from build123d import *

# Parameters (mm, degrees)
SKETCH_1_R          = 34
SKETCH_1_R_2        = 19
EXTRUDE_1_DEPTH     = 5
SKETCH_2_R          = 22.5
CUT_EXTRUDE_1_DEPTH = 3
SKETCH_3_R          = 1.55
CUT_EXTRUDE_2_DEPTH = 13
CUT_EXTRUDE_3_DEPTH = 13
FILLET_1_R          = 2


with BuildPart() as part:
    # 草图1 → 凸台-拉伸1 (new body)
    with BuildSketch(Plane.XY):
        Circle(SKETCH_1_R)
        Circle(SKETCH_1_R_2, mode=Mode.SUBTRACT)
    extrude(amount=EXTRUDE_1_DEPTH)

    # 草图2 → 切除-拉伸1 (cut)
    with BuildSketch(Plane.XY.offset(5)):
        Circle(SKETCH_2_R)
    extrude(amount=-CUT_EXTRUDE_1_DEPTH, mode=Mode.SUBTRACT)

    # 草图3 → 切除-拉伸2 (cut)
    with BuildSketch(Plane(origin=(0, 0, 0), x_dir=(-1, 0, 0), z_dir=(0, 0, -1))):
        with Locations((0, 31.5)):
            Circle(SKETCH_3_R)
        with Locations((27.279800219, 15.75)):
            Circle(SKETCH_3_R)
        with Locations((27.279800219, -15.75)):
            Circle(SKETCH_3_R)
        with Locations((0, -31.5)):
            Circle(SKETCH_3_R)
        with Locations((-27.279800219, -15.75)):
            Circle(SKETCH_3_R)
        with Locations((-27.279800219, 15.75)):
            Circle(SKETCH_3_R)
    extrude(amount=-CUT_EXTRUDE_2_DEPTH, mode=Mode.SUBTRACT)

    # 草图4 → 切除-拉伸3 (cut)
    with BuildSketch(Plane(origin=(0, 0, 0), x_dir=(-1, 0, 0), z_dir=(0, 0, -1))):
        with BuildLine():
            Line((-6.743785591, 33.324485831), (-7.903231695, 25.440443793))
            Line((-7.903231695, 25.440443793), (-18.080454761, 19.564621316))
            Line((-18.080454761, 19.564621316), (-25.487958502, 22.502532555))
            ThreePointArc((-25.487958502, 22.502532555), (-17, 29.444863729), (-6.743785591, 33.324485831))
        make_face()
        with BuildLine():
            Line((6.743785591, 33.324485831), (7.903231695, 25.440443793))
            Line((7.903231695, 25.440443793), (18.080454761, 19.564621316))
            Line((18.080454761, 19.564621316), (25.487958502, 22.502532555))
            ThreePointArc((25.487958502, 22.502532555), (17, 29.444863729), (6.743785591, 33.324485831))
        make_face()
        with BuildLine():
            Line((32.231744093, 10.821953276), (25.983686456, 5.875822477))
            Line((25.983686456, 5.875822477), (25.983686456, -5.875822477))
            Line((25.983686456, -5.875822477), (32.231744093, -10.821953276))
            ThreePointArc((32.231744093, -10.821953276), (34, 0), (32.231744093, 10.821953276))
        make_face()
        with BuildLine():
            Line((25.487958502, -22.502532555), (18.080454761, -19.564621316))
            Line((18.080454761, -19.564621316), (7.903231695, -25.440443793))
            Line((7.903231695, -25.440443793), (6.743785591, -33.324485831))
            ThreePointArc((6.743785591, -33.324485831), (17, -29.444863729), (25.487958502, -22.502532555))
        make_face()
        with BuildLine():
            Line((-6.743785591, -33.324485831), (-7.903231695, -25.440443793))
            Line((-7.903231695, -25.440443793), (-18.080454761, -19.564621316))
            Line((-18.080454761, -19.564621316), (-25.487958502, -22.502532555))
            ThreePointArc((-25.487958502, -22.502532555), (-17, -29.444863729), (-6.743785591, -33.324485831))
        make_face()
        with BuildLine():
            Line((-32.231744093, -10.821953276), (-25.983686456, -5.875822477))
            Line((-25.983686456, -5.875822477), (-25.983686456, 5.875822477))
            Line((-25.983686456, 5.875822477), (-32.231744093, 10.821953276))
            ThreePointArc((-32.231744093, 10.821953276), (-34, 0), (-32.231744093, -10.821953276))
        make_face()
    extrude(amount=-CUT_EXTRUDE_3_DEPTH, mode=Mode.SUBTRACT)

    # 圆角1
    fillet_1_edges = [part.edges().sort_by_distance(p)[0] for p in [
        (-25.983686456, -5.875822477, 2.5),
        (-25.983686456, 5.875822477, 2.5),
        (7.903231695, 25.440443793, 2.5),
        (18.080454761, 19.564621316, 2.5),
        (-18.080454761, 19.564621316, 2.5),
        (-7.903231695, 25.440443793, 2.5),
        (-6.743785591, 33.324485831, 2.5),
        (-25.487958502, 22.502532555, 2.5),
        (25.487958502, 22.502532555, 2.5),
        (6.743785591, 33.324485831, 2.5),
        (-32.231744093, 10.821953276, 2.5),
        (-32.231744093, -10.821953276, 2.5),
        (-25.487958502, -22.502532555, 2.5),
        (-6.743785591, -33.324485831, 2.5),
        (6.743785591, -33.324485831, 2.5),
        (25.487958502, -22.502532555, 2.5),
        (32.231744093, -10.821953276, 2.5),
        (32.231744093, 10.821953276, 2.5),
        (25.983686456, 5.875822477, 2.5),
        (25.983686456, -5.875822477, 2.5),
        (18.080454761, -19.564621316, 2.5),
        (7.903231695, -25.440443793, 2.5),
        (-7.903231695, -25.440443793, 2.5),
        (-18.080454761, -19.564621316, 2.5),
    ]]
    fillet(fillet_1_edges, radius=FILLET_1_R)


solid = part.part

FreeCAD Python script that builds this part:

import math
import FreeCAD as App
import Part
import Sketcher

V = App.Vector
Q = App.Units.Quantity


def edges_at(feature, points):
    """Names of the edges that pass closest to the given points."""
    edges = feature.Shape.Edges
    near = lambda p: min(range(len(edges)), key=lambda i: edges[i].distToShape(Part.Vertex(*p))[0])
    return sorted({f"Edge{near(p) + 1}" for p in points})

doc = App.newDocument("Part")
body = doc.addObject("PartDesign::Body", "Body")

# Sketch on XY plane
sketch1 = body.newObject("Sketcher::SketchObject", "Sketch")
sketch1.AttachmentSupport = (doc.getObject("XY_Plane"), [""])
sketch1.MapMode = "FlatFace"
sketch1.addGeometry(Part.Circle(V(0, 0, 0), V(0, 0, 1), 34), False)
sketch1.addGeometry(Part.Circle(V(0, 0, 0), V(0, 0, 1), 19), False)
sketch1.addConstraint(Sketcher.Constraint("Coincident", 0, 3, -1, 1))
sketch1.addConstraint(Sketcher.Constraint("Coincident", 1, 3, -1, 1))
sketch1.addConstraint(Sketcher.Constraint("Diameter", 0, 68.0))
sketch1.addConstraint(Sketcher.Constraint("Diameter", 1, 38.0))
pad1 = body.newObject("PartDesign::Pad", "Pad")
pad1.Profile = sketch1
pad1.Length = 5

# Sketch on XY plane
sketch2 = body.newObject("Sketcher::SketchObject", "Sketch001")
sketch2.AttachmentSupport = (doc.getObject("XY_Plane"), [""])
sketch2.MapMode = "FlatFace"
sketch2.AttachmentOffset = App.Placement(V(0, 0, 5), App.Rotation())
sketch2.addGeometry(Part.Circle(V(0, 0, 0), V(0, 0, 1), 22.5), False)
sketch2.addConstraint(Sketcher.Constraint("Coincident", 0, 3, -1, 1))
sketch2.addConstraint(Sketcher.Constraint("Diameter", 0, 45.0))
pocket1 = body.newObject("PartDesign::Pocket", "Pocket")
pocket1.Profile = sketch2
pocket1.Length = 3

# Sketch on XY plane
sketch3 = body.newObject("Sketcher::SketchObject", "Sketch002")
sketch3.AttachmentSupport = (doc.getObject("XY_Plane"), [""])
sketch3.MapMode = "FlatFace"
sketch3.addGeometry(Part.Circle(V(0, 31.5, 0), V(0, 0, 1), 1.55), False)
sketch3.addGeometry(Part.Circle(V(-27.2798, 15.75, 0), V(0, 0, 1), 1.55), False)
sketch3.addGeometry(Part.Circle(V(-27.2798, -15.75, 0), V(0, 0, 1), 1.55), False)
sketch3.addGeometry(Part.Circle(V(0, -31.5, 0), V(0, 0, 1), 1.55), False)
sketch3.addGeometry(Part.Circle(V(27.2798, -15.75, 0), V(0, 0, 1), 1.55), False)
sketch3.addGeometry(Part.Circle(V(27.2798, 15.75, 0), V(0, 0, 1), 1.55), False)
sketch3.addConstraint(Sketcher.Constraint("Equal", 0, 1))
sketch3.addConstraint(Sketcher.Constraint("Equal", 1, 2))
sketch3.addConstraint(Sketcher.Constraint("Equal", 2, 3))
sketch3.addConstraint(Sketcher.Constraint("Equal", 3, 4))
sketch3.addConstraint(Sketcher.Constraint("Equal", 4, 5))
sketch3.addConstraint(Sketcher.Constraint("Symmetric", 0, 3, 3, 3, -1, 1))
sketch3.addConstraint(Sketcher.Constraint("Symmetric", 1, 3, 4, 3, -1, 1))
sketch3.addConstraint(Sketcher.Constraint("Symmetric", 2, 3, 5, 3, -1, 1))
sketch3.addConstraint(Sketcher.Constraint("Symmetric", 2, 3, 4, 3, -2))
sketch3.addConstraint(Sketcher.Constraint("PointOnObject", 0, 3, -2))
sketch3.addConstraint(Sketcher.Constraint("Diameter", 0, 3.1))
sketch3.addConstraint(Sketcher.Constraint("DistanceY", 3, 3, 0, 3, 63.0))
sketch3.addConstraint(Sketcher.Constraint("DistanceY", 2, 3, 1, 3, 31.5))
sketch3.addConstraint(Sketcher.Constraint("DistanceX", 1, 3, -1, 1, 27.2798))
pocket2 = body.newObject("PartDesign::Pocket", "Pocket001")
pocket2.Profile = sketch3
pocket2.Length = 13
pocket2.Reversed = True

# Sketch on XY plane
sketch4 = body.newObject("Sketcher::SketchObject", "Sketch003")
sketch4.AttachmentSupport = (doc.getObject("XY_Plane"), [""])
sketch4.MapMode = "FlatFace"
sketch4.addGeometry(Part.LineSegment(V(7.903232, 25.440444, 0), V(6.743786, 33.324486, 0)), False)
sketch4.addGeometry(Part.ArcOfCircle(Part.Circle(V(0, 0, 0), V(0, 0, 1), 34), math.radians(41.440291), math.radians(78.559709)), False)
sketch4.addGeometry(Part.LineSegment(V(25.487959, 22.502533, 0), V(18.080455, 19.564621, 0)), False)
sketch4.addGeometry(Part.LineSegment(V(18.080455, 19.564621, 0), V(7.903232, 25.440444, 0)), False)
sketch4.addGeometry(Part.LineSegment(V(-6.743786, 33.324486, 0), V(-7.903232, 25.440444, 0)), False)
sketch4.addGeometry(Part.LineSegment(V(-7.903232, 25.440444, 0), V(-18.080455, 19.564621, 0)), False)
sketch4.addGeometry(Part.LineSegment(V(-18.080455, 19.564621, 0), V(-25.487959, 22.502533, 0)), False)
sketch4.addGeometry(Part.ArcOfCircle(Part.Circle(V(0, 0, 0), V(0, 0, 1), 34), math.radians(101.440291), math.radians(138.559709)), False)
sketch4.addGeometry(Part.LineSegment(V(-32.231744, 10.821953, 0), V(-25.983686, 5.875822, 0)), False)
sketch4.addGeometry(Part.LineSegment(V(-25.983686, 5.875822, 0), V(-25.983686, -5.875822, 0)), False)
sketch4.addGeometry(Part.LineSegment(V(-25.983686, -5.875822, 0), V(-32.231744, -10.821953, 0)), False)
sketch4.addGeometry(Part.ArcOfCircle(Part.Circle(V(0, 0, 0), V(0, 0, 1), 34), math.radians(161.440291), math.radians(198.559709)), False)
sketch4.addGeometry(Part.LineSegment(V(-25.487959, -22.502533, 0), V(-18.080455, -19.564621, 0)), False)
sketch4.addGeometry(Part.LineSegment(V(-18.080455, -19.564621, 0), V(-7.903232, -25.440444, 0)), False)
sketch4.addGeometry(Part.LineSegment(V(-7.903232, -25.440444, 0), V(-6.743786, -33.324486, 0)), False)
sketch4.addGeometry(Part.ArcOfCircle(Part.Circle(V(0, 0, 0), V(0, 0, 1), 34), math.radians(-138.559709), math.radians(-101.440291)), False)
sketch4.addGeometry(Part.LineSegment(V(6.743786, -33.324486, 0), V(7.903232, -25.440444, 0)), False)
sketch4.addGeometry(Part.LineSegment(V(7.903232, -25.440444, 0), V(18.080455, -19.564621, 0)), False)
sketch4.addGeometry(Part.LineSegment(V(18.080455, -19.564621, 0), V(25.487959, -22.502533, 0)), False)
sketch4.addGeometry(Part.ArcOfCircle(Part.Circle(V(0, 0, 0), V(0, 0, 1), 34), math.radians(-78.559709), math.radians(-41.440291)), False)
sketch4.addGeometry(Part.LineSegment(V(32.231744, -10.821953, 0), V(25.983686, -5.875822, 0)), False)
sketch4.addGeometry(Part.LineSegment(V(25.983686, -5.875822, 0), V(25.983686, 5.875822, 0)), False)
sketch4.addGeometry(Part.LineSegment(V(25.983686, 5.875822, 0), V(32.231744, 10.821953, 0)), False)
sketch4.addGeometry(Part.ArcOfCircle(Part.Circle(V(0, 0, 0), V(0, 0, 1), 34), math.radians(-18.559709), math.radians(18.559709)), False)
sketch4.addConstraint(Sketcher.Constraint("Coincident", 0, 2, 1, 2))
sketch4.addConstraint(Sketcher.Constraint("Coincident", 1, 1, 2, 1))
sketch4.addConstraint(Sketcher.Constraint("Coincident", 2, 2, 3, 1))
sketch4.addConstraint(Sketcher.Constraint("Coincident", 3, 2, 0, 1))
sketch4.addConstraint(Sketcher.Constraint("Coincident", 4, 2, 5, 1))
sketch4.addConstraint(Sketcher.Constraint("Coincident", 5, 2, 6, 1))
sketch4.addConstraint(Sketcher.Constraint("Coincident", 6, 2, 7, 2))
sketch4.addConstraint(Sketcher.Constraint("Coincident", 7, 1, 4, 1))
sketch4.addConstraint(Sketcher.Constraint("Coincident", 8, 2, 9, 1))
sketch4.addConstraint(Sketcher.Constraint("Coincident", 9, 2, 10, 1))
sketch4.addConstraint(Sketcher.Constraint("Coincident", 10, 2, 11, 2))
sketch4.addConstraint(Sketcher.Constraint("Coincident", 11, 1, 8, 1))
sketch4.addConstraint(Sketcher.Constraint("Coincident", 12, 2, 13, 1))
sketch4.addConstraint(Sketcher.Constraint("Coincident", 13, 2, 14, 1))
sketch4.addConstraint(Sketcher.Constraint("Coincident", 14, 2, 15, 2))
sketch4.addConstraint(Sketcher.Constraint("Coincident", 15, 1, 12, 1))
sketch4.addConstraint(Sketcher.Constraint("Coincident", 16, 2, 17, 1))
sketch4.addConstraint(Sketcher.Constraint("Coincident", 17, 2, 18, 1))
sketch4.addConstraint(Sketcher.Constraint("Coincident", 18, 2, 19, 2))
sketch4.addConstraint(Sketcher.Constraint("Coincident", 19, 1, 16, 1))
sketch4.addConstraint(Sketcher.Constraint("Coincident", 20, 2, 21, 1))
sketch4.addConstraint(Sketcher.Constraint("Coincident", 21, 2, 22, 1))
sketch4.addConstraint(Sketcher.Constraint("Coincident", 22, 2, 23, 2))
sketch4.addConstraint(Sketcher.Constraint("Coincident", 23, 1, 20, 1))
sketch4.addConstraint(Sketcher.Constraint("Vertical", 9))
sketch4.addConstraint(Sketcher.Constraint("Vertical", 21))
sketch4.addConstraint(Sketcher.Constraint("Coincident", 1, 3, -1, 1))
sketch4.addConstraint(Sketcher.Constraint("Coincident", 7, 3, -1, 1))
sketch4.addConstraint(Sketcher.Constraint("Coincident", 11, 3, -1, 1))
sketch4.addConstraint(Sketcher.Constraint("Coincident", 15, 3, -1, 1))
sketch4.addConstraint(Sketcher.Constraint("Coincident", 19, 3, -1, 1))
sketch4.addConstraint(Sketcher.Constraint("Coincident", 23, 3, -1, 1))
sketch4.addConstraint(Sketcher.Constraint("Equal", 1, 7))
sketch4.addConstraint(Sketcher.Constraint("Equal", 7, 11))
sketch4.addConstraint(Sketcher.Constraint("Equal", 11, 15))
sketch4.addConstraint(Sketcher.Constraint("Equal", 15, 19))
sketch4.addConstraint(Sketcher.Constraint("Equal", 19, 23))
sketch4.addConstraint(Sketcher.Constraint("Symmetric", 2, 2, 12, 2, -1, 1))
sketch4.addConstraint(Sketcher.Constraint("Symmetric", 3, 2, 13, 2, -1, 1))
sketch4.addConstraint(Sketcher.Constraint("Symmetric", 4, 2, 16, 2, -1, 1))
sketch4.addConstraint(Sketcher.Constraint("Symmetric", 5, 2, 17, 2, -1, 1))
sketch4.addConstraint(Sketcher.Constraint("Symmetric", 8, 2, 20, 2, -1, 1))
sketch4.addConstraint(Sketcher.Constraint("Symmetric", 3, 2, 4, 2, -2))
sketch4.addConstraint(Sketcher.Constraint("Symmetric", 2, 2, 5, 2, -2))
sketch4.addConstraint(Sketcher.Constraint("Parallel", 2, 12))
sketch4.addConstraint(Sketcher.Constraint("Parallel", 0, 14))
sketch4.addConstraint(Sketcher.Constraint("Parallel", 4, 16))
sketch4.addConstraint(Sketcher.Constraint("Parallel", 6, 18))
sketch4.addConstraint(Sketcher.Constraint("Parallel", 8, 20))
sketch4.addConstraint(Sketcher.Constraint("Parallel", 10, 22))
sketch4.addConstraint(Sketcher.Constraint("Horizontal", 1, 1, 6, 2))
sketch4.addConstraint(Sketcher.Constraint("Horizontal", 0, 2, 7, 1))
sketch4.addConstraint(Sketcher.Constraint("Horizontal", 9, 2, 20, 2))
sketch4.addConstraint(Sketcher.Constraint("Horizontal", 8, 2, 21, 2))
sketch4.addConstraint(Sketcher.Constraint("Horizontal", 11, 1, 22, 2))
sketch4.addConstraint(Sketcher.Constraint("Equal", 0, 2))
sketch4.addConstraint(Sketcher.Constraint("Equal", 6, 8))
sketch4.addConstraint(Sketcher.Constraint("Radius", 1, 34.0))
sketch4.addConstraint(Sketcher.Constraint("Angle", 3, Q("150 deg")))
sketch4.addConstraint(Sketcher.Constraint("DistanceY", 8, 2, 5, 2, 13.688799))
sketch4.addConstraint(Sketcher.Constraint("DistanceX", 9, 2, 14, 2, 19.239901))
sketch4.addConstraint(Sketcher.Constraint("Distance", 0, 7.968841))
sketch4.addConstraint(Sketcher.Constraint("DistanceY", 9, 2, 9, 1, 11.751645))
sketch4.addConstraint(Sketcher.Constraint("DistanceX", -1, 1, 1, 1, 25.487959))
sketch4.addConstraint(Sketcher.Constraint("DistanceX", -1, 1, 3, 2, 7.903232))
pocket3 = body.newObject("PartDesign::Pocket", "Pocket002")
pocket3.Profile = sketch4
pocket3.Length = 13
pocket3.Reversed = True
doc.recompute()

fillet = body.newObject("PartDesign::Fillet", "Fillet")
fillet.Base = (pocket3, edges_at(pocket3, [
    (-25.984, -5.876, 2.5),
    (-25.984, 5.876, 2.5),
    (7.903, 25.44, 2.5),
    (18.08, 19.565, 2.5),
    (-18.08, 19.565, 2.5),
    (-7.903, 25.44, 2.5),
    (-6.744, 33.324, 2.5),
    (-25.488, 22.503, 2.5),
    (25.488, 22.503, 2.5),
    (6.744, 33.324, 2.5),
    (-32.232, 10.822, 2.5),
    (-32.232, -10.822, 2.5),
    (-25.488, -22.503, 2.5),
    (-6.744, -33.324, 2.5),
    (6.744, -33.324, 2.5),
    (25.488, -22.503, 2.5),
    (32.232, -10.822, 2.5),
    (32.232, 10.822, 2.5),
    (25.984, 5.876, 2.5),
    (25.984, -5.876, 2.5),
    (18.08, -19.565, 2.5),
    (7.903, -25.44, 2.5),
    (-7.903, -25.44, 2.5),
    (-18.08, -19.565, 2.5),
]))
fillet.Radius = 2

doc.recompute()
